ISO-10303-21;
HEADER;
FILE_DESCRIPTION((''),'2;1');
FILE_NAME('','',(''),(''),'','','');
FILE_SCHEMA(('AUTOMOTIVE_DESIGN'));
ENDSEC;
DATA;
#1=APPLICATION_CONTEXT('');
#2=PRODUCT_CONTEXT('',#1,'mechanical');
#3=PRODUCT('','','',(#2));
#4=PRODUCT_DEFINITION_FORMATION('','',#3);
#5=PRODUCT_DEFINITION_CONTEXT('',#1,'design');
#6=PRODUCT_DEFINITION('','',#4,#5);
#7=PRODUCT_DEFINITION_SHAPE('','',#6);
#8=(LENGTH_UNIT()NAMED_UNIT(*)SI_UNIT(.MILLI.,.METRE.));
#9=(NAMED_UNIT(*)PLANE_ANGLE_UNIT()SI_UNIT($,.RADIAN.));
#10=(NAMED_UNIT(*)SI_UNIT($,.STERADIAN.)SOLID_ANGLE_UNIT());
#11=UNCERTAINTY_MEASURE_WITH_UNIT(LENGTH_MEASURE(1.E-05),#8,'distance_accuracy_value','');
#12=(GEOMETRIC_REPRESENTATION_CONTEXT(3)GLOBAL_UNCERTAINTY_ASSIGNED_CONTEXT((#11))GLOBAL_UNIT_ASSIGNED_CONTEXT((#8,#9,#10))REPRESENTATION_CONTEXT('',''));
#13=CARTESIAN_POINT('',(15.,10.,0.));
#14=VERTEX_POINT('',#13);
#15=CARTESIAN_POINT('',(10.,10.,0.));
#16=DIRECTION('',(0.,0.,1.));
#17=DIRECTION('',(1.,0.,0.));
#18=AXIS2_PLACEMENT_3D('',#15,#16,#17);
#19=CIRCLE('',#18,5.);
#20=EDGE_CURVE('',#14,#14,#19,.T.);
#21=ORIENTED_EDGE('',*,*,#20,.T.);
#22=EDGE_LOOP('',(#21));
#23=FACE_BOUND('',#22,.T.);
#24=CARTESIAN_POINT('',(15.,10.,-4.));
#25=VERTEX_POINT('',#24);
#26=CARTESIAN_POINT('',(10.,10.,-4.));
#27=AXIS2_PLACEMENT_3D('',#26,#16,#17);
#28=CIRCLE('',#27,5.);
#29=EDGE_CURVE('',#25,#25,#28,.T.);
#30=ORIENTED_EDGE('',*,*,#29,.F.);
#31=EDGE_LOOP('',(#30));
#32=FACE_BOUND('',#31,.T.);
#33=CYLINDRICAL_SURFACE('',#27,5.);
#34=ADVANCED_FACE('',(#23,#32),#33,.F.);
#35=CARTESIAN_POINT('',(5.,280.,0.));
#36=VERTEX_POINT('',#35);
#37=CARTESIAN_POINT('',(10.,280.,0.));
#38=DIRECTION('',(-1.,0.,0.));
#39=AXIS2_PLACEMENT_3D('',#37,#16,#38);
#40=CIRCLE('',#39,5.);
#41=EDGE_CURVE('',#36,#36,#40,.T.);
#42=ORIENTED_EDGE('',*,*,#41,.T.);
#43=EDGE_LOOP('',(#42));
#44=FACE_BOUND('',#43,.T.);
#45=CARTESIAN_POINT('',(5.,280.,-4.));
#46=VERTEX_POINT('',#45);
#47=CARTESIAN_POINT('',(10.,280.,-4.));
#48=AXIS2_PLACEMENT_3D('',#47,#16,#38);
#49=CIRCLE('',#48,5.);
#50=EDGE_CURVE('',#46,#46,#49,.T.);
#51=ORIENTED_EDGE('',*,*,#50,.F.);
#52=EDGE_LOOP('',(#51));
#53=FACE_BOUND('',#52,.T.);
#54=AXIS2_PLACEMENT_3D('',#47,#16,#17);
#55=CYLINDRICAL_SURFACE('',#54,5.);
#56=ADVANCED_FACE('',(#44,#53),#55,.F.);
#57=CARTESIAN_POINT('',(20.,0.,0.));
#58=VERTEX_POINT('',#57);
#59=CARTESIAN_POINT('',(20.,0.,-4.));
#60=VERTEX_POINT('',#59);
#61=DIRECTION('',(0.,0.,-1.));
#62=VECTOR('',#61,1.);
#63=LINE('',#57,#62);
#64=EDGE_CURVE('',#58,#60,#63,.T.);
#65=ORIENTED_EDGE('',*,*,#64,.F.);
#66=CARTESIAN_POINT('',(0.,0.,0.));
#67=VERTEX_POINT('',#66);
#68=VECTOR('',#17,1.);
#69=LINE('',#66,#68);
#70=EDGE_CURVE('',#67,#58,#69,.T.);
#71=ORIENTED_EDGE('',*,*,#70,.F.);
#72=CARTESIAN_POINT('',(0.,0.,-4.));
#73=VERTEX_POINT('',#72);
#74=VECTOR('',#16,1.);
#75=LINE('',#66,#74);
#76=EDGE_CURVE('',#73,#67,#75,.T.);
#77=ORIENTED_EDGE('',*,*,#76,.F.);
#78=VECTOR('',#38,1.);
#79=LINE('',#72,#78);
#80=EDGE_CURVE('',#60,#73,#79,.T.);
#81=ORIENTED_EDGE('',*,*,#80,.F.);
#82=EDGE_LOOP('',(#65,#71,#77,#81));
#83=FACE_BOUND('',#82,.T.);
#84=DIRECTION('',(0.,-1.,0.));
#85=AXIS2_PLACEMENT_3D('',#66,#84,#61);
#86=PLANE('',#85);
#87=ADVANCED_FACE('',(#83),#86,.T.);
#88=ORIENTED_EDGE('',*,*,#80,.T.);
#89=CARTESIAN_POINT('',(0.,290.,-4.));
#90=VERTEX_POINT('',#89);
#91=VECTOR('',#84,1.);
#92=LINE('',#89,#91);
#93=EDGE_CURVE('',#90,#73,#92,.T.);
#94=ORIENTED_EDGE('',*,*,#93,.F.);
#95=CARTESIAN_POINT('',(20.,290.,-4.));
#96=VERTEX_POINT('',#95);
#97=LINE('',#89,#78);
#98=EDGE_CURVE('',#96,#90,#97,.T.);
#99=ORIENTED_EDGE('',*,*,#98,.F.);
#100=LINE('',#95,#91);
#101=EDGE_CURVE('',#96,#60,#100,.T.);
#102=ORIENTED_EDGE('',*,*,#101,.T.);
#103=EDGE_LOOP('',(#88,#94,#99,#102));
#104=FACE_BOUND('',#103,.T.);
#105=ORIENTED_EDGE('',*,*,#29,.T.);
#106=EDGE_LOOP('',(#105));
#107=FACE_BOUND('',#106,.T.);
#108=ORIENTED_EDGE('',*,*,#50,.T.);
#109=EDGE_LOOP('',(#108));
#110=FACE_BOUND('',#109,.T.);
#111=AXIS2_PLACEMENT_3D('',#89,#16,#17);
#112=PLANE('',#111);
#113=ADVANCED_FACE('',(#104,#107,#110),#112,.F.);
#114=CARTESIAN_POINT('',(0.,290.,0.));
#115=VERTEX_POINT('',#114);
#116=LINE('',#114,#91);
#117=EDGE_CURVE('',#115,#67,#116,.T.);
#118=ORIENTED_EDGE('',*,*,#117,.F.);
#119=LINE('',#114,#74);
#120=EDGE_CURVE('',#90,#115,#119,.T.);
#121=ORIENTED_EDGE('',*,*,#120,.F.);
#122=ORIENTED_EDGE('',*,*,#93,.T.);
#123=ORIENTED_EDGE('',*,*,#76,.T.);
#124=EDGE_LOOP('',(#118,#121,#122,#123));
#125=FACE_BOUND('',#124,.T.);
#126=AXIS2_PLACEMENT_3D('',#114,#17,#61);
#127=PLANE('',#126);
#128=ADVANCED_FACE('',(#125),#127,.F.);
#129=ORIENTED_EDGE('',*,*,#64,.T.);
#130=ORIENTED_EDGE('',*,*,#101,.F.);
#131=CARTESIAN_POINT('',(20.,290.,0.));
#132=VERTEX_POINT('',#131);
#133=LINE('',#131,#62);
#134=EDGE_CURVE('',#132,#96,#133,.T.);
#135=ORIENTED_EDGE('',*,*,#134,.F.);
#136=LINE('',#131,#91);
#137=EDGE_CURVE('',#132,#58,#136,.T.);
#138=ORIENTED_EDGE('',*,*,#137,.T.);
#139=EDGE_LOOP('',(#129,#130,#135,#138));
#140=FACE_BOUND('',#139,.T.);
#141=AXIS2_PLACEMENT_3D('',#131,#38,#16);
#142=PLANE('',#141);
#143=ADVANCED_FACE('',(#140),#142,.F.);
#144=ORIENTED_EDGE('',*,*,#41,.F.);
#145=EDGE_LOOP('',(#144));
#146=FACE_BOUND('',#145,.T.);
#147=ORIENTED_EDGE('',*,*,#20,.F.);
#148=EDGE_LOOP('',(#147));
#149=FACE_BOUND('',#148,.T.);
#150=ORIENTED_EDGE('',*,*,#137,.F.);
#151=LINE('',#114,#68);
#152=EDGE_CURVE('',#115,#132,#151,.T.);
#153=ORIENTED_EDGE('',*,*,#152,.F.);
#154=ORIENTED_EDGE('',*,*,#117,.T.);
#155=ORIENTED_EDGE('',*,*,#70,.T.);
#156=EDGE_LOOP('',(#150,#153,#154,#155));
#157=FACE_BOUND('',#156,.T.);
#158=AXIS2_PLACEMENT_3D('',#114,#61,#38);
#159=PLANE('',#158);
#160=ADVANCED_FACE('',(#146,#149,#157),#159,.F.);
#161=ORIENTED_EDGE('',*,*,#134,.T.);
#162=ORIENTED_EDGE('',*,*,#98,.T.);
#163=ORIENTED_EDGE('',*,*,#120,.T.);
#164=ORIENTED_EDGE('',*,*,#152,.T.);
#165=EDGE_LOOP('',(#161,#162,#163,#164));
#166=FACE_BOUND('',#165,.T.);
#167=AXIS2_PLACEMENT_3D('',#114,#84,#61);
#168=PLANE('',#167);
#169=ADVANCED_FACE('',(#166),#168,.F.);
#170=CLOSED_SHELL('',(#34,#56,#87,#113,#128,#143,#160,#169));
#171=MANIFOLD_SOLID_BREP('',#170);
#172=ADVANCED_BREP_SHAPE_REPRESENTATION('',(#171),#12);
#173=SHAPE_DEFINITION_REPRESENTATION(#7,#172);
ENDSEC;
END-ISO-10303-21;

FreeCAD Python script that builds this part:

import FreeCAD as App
import Part
import Sketcher

V = App.Vector
Q = App.Units.Quantity

doc = App.newDocument("Part")
body = doc.addObject("PartDesign::Body", "Body")

# Sketch on XZ plane
sketch1 = body.newObject("Sketcher::SketchObject", "Sketch")
sketch1.AttachmentSupport = (doc.getObject("XZ_Plane"), [""])
sketch1.MapMode = "FlatFace"
sketch1.addGeometry([
    Part.LineSegment(V(0, -4, 0), V(0, 0, 0)),
    Part.LineSegment(V(0, 0, 0), V(20, 0, 0)),
    Part.LineSegment(V(20, 0, 0), V(20, -4, 0)),
    Part.LineSegment(V(20, -4, 0), V(0, -4, 0)),
], False)
sketch1.addConstraint([
    Sketcher.Constraint("Coincident", 0, 2, 1, 1),
    Sketcher.Constraint("Coincident", 1, 2, 2, 1),
    Sketcher.Constraint("Coincident", 2, 2, 3, 1),
    Sketcher.Constraint("Coincident", 3, 2, 0, 1),
    Sketcher.Constraint("Vertical", 0),
    Sketcher.Constraint("Horizontal", 1),
    Sketcher.Constraint("Vertical", 2),
    Sketcher.Constraint("Horizontal", 3),
    Sketcher.Constraint("Coincident", 0, 2, -1, 1),
    Sketcher.Constraint("DistanceX", 1, 1, 1, 2, Q("20 mm")),
    Sketcher.Constraint("DistanceY", 0, 1, 0, 2, Q("4 mm")),
])
pad1 = body.newObject("PartDesign::Pad", "Pad")
pad1.Profile = sketch1
pad1.Length = 290
pad1.Reversed = True

# Sketch on XY plane
sketch2 = body.newObject("Sketcher::SketchObject", "Sketch001")
sketch2.AttachmentSupport = (doc.getObject("XY_Plane"), [""])
sketch2.MapMode = "FlatFace"
sketch2.addGeometry([
    Part.Circle(V(10, 10, 0), V(0, 0, 1), 5),
    Part.Circle(V(10, 280, 0), V(0, 0, 1), 5),
], False)
sketch2.addConstraint([
    Sketcher.Constraint("Equal", 0, 1),
    Sketcher.Constraint("Vertical", 0, 3, 1, 3),
    Sketcher.Constraint("Diameter", 0, Q("10 mm")),
    Sketcher.Constraint("DistanceX", -1, 1, 0, 3, Q("10 mm")),
    Sketcher.Constraint("DistanceY", -1, 1, 0, 3, Q("10 mm")),
    Sketcher.Constraint("DistanceY", -1, 1, 1, 3, Q("280 mm")),
])
pocket1 = body.newObject("PartDesign::Pocket", "Pocket")
pocket1.Profile = sketch2
pocket1.Type = "ThroughAll"

doc.recompute()
